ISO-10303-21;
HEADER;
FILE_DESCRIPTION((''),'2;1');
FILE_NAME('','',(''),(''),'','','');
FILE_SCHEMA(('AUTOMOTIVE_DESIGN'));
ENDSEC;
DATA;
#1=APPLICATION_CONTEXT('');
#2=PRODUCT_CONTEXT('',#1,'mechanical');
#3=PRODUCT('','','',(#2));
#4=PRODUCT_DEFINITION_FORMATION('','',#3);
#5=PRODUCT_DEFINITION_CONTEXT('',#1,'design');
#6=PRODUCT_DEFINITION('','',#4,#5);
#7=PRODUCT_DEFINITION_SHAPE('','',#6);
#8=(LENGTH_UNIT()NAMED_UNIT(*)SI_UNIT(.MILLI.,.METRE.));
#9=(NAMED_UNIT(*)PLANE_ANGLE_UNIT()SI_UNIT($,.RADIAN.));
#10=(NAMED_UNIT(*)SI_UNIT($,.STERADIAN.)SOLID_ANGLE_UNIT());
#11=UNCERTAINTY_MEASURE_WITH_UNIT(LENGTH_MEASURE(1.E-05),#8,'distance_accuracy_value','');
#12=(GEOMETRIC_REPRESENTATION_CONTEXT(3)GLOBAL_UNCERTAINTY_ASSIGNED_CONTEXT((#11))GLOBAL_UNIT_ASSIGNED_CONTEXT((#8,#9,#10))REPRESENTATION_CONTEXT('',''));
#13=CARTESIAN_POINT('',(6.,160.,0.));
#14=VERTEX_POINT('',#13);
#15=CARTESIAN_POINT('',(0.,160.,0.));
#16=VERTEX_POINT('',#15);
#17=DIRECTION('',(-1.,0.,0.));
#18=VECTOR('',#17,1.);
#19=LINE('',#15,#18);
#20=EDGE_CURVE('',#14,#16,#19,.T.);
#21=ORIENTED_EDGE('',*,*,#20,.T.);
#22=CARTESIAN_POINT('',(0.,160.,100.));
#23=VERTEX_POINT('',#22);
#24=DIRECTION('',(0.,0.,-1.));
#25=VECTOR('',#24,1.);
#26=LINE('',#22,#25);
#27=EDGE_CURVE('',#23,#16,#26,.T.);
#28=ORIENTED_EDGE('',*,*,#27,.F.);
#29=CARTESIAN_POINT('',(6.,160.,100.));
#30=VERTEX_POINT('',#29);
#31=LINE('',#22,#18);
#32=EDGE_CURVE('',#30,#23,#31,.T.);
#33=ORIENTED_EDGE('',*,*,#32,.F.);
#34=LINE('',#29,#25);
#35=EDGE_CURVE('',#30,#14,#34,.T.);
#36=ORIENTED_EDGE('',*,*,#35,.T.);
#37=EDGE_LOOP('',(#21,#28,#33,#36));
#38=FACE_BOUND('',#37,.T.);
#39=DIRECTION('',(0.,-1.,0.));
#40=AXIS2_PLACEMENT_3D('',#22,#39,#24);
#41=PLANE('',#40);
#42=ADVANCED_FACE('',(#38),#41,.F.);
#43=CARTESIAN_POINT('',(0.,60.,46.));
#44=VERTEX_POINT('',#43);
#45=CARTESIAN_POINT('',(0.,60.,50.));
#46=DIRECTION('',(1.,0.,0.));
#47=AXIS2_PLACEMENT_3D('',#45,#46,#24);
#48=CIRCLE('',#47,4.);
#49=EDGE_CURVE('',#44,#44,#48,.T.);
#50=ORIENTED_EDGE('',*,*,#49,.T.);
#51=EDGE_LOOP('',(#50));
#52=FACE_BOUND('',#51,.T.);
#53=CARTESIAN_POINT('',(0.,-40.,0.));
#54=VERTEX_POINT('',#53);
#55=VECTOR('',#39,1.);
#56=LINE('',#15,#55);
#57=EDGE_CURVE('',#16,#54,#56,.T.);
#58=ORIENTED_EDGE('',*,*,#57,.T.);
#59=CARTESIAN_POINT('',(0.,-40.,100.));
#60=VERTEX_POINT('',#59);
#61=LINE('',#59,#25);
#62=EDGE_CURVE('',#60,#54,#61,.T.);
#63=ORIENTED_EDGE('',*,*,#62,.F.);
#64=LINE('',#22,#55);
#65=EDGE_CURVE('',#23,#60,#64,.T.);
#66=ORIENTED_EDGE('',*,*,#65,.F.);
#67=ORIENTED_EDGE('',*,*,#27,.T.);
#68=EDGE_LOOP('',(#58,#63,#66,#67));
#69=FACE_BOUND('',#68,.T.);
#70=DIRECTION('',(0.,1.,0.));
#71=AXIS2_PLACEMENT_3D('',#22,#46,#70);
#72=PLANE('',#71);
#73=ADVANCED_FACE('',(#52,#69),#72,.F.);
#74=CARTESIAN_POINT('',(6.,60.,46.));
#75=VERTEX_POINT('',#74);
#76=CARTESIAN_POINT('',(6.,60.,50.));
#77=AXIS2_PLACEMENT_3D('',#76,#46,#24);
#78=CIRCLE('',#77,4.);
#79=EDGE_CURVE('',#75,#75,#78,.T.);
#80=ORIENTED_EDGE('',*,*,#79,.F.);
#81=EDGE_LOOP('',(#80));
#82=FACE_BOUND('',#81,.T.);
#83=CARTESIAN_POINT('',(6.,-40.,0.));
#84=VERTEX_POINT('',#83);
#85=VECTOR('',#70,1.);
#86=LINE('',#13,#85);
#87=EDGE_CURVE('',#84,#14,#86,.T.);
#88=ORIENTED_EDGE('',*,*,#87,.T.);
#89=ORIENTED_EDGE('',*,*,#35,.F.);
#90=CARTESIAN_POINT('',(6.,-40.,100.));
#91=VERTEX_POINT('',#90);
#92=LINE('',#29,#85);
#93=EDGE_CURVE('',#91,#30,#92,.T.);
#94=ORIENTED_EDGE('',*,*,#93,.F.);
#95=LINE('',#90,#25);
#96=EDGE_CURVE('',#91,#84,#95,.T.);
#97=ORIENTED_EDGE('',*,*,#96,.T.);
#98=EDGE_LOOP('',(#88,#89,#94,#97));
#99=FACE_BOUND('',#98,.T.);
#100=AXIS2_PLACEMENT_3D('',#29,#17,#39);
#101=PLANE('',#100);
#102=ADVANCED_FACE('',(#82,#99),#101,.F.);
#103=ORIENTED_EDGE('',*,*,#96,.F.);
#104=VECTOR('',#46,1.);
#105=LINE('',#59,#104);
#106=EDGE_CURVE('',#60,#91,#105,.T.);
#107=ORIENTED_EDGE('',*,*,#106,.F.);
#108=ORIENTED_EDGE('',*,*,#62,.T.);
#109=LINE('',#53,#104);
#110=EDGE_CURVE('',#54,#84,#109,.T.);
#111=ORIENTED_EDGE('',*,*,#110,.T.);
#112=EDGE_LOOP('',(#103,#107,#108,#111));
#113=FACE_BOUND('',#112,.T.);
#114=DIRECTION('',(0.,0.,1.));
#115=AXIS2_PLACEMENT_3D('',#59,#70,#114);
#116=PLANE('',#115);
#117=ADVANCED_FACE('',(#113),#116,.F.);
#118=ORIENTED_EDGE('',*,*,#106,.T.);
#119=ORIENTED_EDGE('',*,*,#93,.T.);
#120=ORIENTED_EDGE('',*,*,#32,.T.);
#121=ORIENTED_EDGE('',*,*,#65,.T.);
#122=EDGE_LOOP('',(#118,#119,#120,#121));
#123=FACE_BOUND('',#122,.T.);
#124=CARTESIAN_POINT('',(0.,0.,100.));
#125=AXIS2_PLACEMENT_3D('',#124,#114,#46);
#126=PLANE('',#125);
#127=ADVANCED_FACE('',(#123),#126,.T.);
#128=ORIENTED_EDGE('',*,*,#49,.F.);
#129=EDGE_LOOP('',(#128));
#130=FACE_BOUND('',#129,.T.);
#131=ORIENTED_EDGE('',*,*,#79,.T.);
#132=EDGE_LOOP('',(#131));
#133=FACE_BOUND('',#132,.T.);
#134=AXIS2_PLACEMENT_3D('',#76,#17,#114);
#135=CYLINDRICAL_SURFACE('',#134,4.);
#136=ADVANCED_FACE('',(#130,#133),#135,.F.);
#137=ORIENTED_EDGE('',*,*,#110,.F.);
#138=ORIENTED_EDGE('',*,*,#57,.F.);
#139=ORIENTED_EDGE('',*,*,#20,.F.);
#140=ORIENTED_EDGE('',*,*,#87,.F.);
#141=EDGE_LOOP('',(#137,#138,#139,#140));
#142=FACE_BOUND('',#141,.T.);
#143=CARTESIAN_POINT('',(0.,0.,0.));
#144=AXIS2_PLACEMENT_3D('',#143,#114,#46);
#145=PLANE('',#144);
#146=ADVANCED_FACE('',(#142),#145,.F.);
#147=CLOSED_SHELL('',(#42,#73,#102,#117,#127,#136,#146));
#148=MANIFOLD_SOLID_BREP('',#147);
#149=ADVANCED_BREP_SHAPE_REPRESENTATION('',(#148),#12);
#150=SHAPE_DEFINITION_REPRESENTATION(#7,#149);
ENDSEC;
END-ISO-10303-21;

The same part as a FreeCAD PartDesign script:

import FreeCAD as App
import Part
import Sketcher

V = App.Vector
Q = App.Units.Quantity

doc = App.newDocument("Part")
body = doc.addObject("PartDesign::Body", "Body")

# Sketch on XY plane
sketch1 = body.newObject("Sketcher::SketchObject", "Sketch")
sketch1.AttachmentSupport = (doc.getObject("XY_Plane"), [""])
sketch1.MapMode = "FlatFace"
sketch1.addGeometry([
    Part.LineSegment(V(0, 160, 0), V(0, -40, 0)),
    Part.LineSegment(V(0, -40, 0), V(6, -40, 0)),
    Part.LineSegment(V(6, -40, 0), V(6, 160, 0)),
    Part.LineSegment(V(6, 160, 0), V(0, 160, 0)),
], False)
sketch1.addConstraint([
    Sketcher.Constraint("Coincident", 0, 2, 1, 1),
    Sketcher.Constraint("Coincident", 1, 2, 2, 1),
    Sketcher.Constraint("Coincident", 2, 2, 3, 1),
    Sketcher.Constraint("Coincident", 3, 2, 0, 1),
    Sketcher.Constraint("Vertical", 0),
    Sketcher.Constraint("Horizontal", 1),
    Sketcher.Constraint("Vertical", 2),
    Sketcher.Constraint("Horizontal", 3),
    Sketcher.Constraint("PointOnObject", 0, 2, -2),
    Sketcher.Constraint("DistanceX", 1, 1, 1, 2, Q("6 mm")),
    Sketcher.Constraint("DistanceY", 0, 2, 0, 1, Q("200 mm")),
    Sketcher.Constraint("DistanceY", 0, 2, -1, 1, Q("40 mm")),
])
pad1 = body.newObject("PartDesign::Pad", "Pad")
pad1.Profile = sketch1
pad1.Length = 100

# Sketch on YZ plane
sketch2 = body.newObject("Sketcher::SketchObject", "Sketch001")
sketch2.AttachmentSupport = (doc.getObject("YZ_Plane"), [""])
sketch2.MapMode = "FlatFace"
sketch2.addGeometry(Part.Circle(V(60, 50, 0), V(0, 0, 1), 4), False)
sketch2.addConstraint([
    Sketcher.Constraint("Diameter", 0, Q("8 mm")),
    Sketcher.Constraint("DistanceX", -1, 1, 0, 3, Q("60 mm")),
    Sketcher.Constraint("DistanceY", -1, 1, 0, 3, Q("50 mm")),
])
pocket1 = body.newObject("PartDesign::Pocket", "Pocket")
pocket1.Profile = sketch2
pocket1.Type = "ThroughAll"
pocket1.Reversed = True

doc.recompute()
